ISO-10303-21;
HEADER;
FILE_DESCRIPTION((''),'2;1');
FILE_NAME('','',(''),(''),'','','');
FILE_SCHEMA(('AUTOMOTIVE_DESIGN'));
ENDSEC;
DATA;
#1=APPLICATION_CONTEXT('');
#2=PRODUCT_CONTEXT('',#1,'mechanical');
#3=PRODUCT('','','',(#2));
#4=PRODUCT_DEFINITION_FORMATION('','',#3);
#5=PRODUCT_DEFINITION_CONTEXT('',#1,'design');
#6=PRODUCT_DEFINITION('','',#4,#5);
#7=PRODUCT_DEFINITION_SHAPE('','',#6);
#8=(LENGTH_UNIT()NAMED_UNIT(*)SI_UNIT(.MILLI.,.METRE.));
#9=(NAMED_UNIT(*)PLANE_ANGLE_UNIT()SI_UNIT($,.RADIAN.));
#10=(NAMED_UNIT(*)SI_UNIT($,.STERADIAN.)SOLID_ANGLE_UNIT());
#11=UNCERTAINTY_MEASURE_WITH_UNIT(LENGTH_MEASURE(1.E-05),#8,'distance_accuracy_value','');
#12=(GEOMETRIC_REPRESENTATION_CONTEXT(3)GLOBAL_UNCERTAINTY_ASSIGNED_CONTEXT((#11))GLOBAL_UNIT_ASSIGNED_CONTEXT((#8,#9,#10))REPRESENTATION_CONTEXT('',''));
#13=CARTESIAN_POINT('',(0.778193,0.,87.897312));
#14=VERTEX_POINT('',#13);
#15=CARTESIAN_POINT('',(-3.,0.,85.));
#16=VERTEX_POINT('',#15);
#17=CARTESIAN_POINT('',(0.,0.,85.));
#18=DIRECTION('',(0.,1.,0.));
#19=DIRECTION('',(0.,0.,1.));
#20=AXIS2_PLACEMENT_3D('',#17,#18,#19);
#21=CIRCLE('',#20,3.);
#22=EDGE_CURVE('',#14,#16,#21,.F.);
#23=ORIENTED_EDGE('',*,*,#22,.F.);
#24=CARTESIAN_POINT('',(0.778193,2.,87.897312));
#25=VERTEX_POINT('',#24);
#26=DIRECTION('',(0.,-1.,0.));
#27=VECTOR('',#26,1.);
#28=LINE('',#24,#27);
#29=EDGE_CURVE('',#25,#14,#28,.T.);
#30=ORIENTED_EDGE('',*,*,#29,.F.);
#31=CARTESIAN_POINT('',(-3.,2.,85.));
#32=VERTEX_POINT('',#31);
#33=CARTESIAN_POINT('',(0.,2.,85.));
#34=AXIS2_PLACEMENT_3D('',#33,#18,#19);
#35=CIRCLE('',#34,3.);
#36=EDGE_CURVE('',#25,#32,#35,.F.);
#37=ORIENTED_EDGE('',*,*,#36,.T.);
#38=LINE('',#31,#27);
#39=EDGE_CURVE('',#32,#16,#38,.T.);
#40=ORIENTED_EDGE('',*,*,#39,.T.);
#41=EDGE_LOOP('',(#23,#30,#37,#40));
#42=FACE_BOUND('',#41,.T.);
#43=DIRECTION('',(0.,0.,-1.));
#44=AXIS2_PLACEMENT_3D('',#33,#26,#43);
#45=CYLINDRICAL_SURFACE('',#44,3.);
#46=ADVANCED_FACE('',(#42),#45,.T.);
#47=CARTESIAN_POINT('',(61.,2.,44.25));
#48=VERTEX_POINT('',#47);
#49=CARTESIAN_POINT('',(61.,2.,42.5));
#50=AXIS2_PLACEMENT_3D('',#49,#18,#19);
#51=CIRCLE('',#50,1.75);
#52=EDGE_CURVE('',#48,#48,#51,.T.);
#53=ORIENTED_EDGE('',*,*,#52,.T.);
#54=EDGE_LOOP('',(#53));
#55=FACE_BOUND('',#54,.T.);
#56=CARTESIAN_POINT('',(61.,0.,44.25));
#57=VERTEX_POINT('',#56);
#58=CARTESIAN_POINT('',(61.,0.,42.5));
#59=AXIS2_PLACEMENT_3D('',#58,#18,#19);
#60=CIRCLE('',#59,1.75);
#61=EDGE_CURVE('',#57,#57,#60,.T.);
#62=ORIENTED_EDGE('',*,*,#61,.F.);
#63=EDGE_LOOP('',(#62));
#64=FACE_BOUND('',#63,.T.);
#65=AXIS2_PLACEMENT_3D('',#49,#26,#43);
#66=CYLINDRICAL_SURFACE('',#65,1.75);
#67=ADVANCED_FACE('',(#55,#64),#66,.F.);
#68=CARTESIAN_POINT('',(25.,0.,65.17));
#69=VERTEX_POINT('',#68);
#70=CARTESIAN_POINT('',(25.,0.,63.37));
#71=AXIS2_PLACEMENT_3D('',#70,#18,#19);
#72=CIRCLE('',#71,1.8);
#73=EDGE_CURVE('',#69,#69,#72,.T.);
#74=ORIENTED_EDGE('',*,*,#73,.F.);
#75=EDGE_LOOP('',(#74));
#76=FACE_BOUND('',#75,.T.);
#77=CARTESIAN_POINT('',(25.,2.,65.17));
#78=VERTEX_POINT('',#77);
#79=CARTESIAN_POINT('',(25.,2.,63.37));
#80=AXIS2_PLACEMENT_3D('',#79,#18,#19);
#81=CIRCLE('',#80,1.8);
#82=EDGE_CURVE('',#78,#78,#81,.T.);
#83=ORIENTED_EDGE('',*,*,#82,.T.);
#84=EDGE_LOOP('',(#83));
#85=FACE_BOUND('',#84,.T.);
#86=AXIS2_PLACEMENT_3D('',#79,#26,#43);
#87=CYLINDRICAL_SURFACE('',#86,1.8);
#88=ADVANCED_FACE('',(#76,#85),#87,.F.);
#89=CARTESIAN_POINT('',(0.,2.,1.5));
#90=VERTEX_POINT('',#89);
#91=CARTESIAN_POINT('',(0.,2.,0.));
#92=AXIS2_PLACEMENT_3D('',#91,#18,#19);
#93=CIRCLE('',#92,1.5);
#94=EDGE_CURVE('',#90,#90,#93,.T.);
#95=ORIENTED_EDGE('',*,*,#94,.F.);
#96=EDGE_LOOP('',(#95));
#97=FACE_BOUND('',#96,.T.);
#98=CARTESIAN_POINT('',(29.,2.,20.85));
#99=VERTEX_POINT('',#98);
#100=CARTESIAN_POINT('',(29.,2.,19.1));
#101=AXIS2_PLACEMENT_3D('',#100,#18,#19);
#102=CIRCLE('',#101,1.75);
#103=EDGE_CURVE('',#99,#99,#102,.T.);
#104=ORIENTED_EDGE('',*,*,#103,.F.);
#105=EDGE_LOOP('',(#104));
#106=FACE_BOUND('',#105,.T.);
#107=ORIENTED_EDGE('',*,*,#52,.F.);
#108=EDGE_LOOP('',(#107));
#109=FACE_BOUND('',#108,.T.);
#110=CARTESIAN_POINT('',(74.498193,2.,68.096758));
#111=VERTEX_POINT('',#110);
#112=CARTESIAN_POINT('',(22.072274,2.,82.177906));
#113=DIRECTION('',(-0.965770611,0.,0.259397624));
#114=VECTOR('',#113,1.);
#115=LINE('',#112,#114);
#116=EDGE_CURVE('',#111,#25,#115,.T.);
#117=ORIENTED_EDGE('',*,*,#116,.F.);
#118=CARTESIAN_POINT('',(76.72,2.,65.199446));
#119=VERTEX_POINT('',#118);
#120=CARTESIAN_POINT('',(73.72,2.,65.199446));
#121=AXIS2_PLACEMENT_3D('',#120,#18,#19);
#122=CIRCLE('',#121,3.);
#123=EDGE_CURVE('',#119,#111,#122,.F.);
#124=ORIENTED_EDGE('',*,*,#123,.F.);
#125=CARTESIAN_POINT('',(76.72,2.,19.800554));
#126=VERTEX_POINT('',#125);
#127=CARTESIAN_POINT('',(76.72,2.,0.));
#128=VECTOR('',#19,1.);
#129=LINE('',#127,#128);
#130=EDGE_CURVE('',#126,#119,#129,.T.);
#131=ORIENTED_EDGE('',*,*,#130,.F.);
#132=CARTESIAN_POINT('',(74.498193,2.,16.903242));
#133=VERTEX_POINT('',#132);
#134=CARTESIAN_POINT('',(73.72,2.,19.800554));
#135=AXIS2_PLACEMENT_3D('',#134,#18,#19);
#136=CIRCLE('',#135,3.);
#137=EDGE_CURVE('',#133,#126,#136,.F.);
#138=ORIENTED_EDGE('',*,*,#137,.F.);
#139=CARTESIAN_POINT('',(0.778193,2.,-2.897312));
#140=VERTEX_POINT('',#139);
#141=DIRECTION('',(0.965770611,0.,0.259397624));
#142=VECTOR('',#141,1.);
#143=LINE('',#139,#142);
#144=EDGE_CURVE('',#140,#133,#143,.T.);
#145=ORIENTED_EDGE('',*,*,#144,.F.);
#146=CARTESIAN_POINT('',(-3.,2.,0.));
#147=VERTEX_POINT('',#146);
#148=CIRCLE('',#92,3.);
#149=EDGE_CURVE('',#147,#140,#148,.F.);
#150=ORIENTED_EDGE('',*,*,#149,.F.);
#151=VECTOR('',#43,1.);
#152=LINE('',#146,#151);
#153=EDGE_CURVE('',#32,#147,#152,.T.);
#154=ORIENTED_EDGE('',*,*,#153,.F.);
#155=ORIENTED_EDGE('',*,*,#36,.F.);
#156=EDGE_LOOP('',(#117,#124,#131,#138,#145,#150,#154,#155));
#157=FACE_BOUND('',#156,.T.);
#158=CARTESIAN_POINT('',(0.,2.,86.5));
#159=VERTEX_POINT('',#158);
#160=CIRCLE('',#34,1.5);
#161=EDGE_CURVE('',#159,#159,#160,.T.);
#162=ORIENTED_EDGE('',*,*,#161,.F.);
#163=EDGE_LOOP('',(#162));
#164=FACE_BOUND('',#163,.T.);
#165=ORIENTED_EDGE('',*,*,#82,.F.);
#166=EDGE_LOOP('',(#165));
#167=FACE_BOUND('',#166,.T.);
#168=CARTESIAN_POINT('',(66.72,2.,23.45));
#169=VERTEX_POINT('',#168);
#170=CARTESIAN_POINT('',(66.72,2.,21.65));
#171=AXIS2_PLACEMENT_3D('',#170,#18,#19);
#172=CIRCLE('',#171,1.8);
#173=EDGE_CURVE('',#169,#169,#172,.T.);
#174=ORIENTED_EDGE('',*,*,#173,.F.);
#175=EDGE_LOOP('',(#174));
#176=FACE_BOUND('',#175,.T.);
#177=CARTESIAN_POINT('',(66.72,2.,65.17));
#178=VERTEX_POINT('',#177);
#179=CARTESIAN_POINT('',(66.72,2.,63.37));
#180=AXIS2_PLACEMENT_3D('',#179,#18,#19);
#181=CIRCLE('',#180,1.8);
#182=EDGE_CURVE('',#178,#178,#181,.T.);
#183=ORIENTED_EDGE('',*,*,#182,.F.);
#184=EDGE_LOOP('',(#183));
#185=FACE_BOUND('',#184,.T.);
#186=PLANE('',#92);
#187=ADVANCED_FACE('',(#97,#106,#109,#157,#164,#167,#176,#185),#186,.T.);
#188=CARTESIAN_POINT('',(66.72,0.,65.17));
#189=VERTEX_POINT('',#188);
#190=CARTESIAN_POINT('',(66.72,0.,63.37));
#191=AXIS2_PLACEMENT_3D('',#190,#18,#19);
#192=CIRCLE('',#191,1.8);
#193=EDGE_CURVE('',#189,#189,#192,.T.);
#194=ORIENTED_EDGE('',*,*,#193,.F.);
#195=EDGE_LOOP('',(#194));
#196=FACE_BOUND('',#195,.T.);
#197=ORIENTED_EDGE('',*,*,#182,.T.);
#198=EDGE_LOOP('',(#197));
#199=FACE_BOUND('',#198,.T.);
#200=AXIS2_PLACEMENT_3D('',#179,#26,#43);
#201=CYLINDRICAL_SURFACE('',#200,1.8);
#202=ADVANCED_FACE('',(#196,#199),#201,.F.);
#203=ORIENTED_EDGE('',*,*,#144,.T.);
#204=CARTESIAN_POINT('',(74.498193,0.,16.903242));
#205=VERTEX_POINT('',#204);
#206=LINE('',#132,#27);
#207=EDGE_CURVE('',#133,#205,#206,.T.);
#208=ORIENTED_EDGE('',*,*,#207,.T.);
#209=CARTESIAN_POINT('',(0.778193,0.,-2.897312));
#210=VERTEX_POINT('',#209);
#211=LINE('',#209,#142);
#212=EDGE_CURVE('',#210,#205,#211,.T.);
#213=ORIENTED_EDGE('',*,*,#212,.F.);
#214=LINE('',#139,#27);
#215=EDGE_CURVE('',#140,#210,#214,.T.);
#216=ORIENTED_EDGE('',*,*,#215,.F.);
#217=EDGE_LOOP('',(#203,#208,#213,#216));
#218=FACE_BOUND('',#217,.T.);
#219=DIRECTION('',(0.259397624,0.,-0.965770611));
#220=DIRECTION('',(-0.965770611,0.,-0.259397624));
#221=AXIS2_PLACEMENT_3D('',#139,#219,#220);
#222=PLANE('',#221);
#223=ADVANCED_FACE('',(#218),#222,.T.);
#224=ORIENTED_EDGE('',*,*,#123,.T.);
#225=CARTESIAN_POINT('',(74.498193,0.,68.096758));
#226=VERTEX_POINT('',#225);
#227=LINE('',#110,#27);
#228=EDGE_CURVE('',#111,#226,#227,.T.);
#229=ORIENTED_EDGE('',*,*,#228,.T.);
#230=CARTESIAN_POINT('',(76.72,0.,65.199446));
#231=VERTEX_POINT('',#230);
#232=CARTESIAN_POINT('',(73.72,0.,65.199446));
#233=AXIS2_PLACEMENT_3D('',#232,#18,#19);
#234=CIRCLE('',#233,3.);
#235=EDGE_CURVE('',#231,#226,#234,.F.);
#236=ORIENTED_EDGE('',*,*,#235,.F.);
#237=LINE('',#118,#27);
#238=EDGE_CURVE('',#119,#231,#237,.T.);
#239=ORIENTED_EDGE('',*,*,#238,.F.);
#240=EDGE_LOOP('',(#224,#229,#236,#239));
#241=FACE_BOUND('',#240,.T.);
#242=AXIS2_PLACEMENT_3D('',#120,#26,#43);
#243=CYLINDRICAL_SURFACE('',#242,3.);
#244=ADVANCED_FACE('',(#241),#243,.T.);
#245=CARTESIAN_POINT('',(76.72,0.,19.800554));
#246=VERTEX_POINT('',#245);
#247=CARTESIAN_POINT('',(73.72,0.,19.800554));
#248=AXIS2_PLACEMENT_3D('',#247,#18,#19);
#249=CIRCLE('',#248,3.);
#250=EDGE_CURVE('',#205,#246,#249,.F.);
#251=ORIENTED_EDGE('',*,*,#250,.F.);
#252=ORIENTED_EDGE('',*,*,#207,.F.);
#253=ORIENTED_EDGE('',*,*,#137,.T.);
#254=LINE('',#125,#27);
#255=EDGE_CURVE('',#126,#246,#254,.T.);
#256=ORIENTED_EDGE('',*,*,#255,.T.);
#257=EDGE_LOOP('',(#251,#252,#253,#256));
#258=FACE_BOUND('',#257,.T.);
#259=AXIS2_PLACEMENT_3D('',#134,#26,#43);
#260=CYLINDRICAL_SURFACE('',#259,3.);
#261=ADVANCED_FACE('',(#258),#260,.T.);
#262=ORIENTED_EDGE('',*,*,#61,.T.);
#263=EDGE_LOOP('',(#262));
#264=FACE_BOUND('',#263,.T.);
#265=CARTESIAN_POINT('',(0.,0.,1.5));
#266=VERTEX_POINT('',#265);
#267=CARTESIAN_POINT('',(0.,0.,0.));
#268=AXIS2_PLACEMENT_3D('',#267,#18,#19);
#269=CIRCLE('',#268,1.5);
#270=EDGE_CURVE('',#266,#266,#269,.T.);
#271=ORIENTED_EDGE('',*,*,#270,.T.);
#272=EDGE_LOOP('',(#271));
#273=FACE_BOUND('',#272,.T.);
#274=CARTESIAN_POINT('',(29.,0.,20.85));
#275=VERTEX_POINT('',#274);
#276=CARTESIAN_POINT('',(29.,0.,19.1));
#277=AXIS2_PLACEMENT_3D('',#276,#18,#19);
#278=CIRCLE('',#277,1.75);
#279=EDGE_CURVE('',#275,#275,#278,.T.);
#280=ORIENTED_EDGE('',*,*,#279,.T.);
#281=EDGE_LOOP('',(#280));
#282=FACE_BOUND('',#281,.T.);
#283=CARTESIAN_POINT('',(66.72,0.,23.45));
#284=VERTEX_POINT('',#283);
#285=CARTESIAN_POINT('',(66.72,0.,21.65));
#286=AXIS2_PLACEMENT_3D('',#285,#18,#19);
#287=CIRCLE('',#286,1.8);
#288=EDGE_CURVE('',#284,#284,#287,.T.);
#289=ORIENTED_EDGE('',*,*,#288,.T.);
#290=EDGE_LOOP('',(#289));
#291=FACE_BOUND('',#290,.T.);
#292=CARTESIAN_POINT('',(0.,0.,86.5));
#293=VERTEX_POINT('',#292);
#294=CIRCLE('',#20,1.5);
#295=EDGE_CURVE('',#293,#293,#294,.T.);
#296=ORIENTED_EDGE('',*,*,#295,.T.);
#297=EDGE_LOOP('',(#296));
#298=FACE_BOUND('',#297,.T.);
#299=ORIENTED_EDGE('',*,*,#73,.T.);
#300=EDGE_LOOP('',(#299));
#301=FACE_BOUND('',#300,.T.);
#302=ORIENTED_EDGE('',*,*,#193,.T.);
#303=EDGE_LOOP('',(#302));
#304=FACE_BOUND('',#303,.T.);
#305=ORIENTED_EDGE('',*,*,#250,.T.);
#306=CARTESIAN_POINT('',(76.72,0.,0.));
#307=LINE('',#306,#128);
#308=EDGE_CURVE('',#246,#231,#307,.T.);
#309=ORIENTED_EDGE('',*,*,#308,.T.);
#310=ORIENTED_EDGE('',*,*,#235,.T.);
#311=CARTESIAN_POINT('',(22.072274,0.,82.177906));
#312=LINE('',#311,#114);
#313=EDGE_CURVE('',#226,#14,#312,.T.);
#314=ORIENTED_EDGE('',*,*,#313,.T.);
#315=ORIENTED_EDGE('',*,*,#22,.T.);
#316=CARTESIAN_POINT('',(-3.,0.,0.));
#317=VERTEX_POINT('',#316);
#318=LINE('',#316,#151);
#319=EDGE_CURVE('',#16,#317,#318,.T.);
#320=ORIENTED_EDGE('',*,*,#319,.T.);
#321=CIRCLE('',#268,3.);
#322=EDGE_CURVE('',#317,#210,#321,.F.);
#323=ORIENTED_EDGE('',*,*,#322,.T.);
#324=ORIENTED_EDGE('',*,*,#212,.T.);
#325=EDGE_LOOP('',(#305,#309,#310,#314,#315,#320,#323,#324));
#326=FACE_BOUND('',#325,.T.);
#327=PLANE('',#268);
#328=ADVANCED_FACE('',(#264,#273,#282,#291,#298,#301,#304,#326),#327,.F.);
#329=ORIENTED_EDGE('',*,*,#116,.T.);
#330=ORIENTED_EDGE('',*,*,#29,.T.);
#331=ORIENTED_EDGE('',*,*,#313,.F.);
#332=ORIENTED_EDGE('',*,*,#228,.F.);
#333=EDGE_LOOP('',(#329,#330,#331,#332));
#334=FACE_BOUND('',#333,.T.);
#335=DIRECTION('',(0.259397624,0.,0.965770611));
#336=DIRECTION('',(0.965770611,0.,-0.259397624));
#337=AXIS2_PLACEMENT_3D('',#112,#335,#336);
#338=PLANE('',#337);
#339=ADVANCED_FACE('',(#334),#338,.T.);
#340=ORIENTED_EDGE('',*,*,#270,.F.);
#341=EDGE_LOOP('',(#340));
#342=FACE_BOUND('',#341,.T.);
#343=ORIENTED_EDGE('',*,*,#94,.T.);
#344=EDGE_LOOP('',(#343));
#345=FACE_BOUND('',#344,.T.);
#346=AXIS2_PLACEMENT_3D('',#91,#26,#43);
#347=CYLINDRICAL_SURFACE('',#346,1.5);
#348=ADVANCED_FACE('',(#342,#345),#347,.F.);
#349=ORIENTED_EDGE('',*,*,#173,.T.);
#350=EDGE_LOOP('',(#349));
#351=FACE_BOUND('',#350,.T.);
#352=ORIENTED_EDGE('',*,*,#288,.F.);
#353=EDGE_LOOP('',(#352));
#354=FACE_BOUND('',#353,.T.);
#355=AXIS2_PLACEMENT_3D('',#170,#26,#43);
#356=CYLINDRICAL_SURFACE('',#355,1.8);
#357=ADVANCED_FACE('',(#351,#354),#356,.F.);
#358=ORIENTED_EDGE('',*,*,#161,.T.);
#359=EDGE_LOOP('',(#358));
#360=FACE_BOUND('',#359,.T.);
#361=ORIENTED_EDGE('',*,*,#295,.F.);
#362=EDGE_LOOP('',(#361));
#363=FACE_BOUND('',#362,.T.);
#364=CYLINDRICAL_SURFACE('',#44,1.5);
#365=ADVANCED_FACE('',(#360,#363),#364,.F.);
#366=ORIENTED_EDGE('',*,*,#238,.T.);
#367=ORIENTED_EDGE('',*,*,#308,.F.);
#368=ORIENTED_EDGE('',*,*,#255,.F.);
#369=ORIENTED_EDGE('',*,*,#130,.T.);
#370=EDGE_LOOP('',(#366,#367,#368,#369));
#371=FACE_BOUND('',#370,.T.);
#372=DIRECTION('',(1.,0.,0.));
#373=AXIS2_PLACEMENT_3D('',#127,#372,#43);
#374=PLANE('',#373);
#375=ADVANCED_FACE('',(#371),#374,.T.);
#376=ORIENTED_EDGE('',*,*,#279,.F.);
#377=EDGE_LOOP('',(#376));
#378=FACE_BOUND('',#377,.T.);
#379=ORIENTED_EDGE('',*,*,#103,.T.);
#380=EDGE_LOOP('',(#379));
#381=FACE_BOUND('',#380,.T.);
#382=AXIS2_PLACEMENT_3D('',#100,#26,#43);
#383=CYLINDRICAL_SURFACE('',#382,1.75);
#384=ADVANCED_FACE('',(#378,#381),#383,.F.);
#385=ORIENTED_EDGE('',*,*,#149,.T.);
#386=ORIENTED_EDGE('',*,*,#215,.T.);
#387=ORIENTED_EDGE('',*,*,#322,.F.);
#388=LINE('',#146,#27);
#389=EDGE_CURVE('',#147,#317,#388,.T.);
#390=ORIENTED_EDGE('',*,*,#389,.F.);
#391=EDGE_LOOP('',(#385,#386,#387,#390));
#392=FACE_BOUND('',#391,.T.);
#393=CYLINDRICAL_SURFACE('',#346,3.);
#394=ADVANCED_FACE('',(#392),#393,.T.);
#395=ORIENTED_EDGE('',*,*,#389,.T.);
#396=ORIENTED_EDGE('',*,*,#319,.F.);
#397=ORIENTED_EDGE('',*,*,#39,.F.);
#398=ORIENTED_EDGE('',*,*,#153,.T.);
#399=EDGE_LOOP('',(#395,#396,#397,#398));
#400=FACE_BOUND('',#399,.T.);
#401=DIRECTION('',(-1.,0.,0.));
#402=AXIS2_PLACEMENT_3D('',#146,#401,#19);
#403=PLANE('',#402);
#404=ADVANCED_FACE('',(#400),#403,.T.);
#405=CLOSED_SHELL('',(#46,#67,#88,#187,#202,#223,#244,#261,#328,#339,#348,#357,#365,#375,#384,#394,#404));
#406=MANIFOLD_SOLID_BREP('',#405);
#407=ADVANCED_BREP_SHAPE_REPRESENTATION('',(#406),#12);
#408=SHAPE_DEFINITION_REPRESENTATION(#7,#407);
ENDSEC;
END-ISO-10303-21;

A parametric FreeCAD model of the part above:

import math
import FreeCAD as App
import Part
import Sketcher
from FreeCAD import Vector

doc = App.newDocument("Part")
body = doc.addObject("PartDesign::Body", "Body")

# Sketch on XZ plane
sketch1 = doc.addObject("Sketcher::SketchObject", "Sketch")
body.addObject(sketch1)
sketch1.AttachmentSupport = (doc.XZ_Plane, [""])
sketch1.MapMode = "FlatFace"
sketch1.addGeometry(Part.LineSegment(Vector(74.5, 16.9, 0), Vector(0.8, -2.9, 0)), False)
sketch1.addGeometry(Part.ArcOfCircle(Part.Circle(Vector(0, 0, 0), Vector(0, 0, 1), 3), math.radians(180), math.radians(285)), False)
sketch1.addGeometry(Part.LineSegment(Vector(-3, 0, 0), Vector(-3, 85, 0)), False)
sketch1.addGeometry(Part.ArcOfCircle(Part.Circle(Vector(0, 85, 0), Vector(0, 0, 1), 3), math.radians(75), math.radians(180)), False)
sketch1.addGeometry(Part.LineSegment(Vector(0.8, 87.9, 0), Vector(74.5, 68.1, 0)), False)
sketch1.addGeometry(Part.ArcOfCircle(Part.Circle(Vector(73.7, 65.2, 0), Vector(0, 0, 1), 3), math.radians(0), math.radians(75)), False)
sketch1.addGeometry(Part.LineSegment(Vector(76.7, 65.2, 0), Vector(76.7, 19.8, 0)), False)
sketch1.addGeometry(Part.ArcOfCircle(Part.Circle(Vector(73.7, 19.8, 0), Vector(0, 0, 1), 3), math.radians(-75), math.radians(0)), False)
sketch1.addGeometry(Part.Circle(Vector(66.7, 63.4, 0), Vector(0, 0, 1), 1.8), False)
sketch1.addGeometry(Part.Circle(Vector(0, 85, 0), Vector(0, 0, 1), 1.5), False)
sketch1.addGeometry(Part.Circle(Vector(25, 63.4, 0), Vector(0, 0, 1), 1.8), False)
sketch1.addGeometry(Part.Circle(Vector(61, 42.5, 0), Vector(0, 0, 1), 1.8), False)
sketch1.addGeometry(Part.Circle(Vector(66.7, 21.6, 0), Vector(0, 0, 1), 1.8), False)
sketch1.addGeometry(Part.Circle(Vector(29, 19.1, 0), Vector(0, 0, 1), 1.8), False)
sketch1.addGeometry(Part.Circle(Vector(0, 0, 0), Vector(0, 0, 1), 1.5), False)
sketch1.addConstraint(Sketcher.Constraint("Tangent", 0, 2, 1, 2))
sketch1.addConstraint(Sketcher.Constraint("Tangent", 1, 1, 2, 1))
sketch1.addConstraint(Sketcher.Constraint("Tangent", 2, 2, 3, 2))
sketch1.addConstraint(Sketcher.Constraint("Tangent", 3, 1, 4, 1))
sketch1.addConstraint(Sketcher.Constraint("Tangent", 4, 2, 5, 2))
sketch1.addConstraint(Sketcher.Constraint("Tangent", 5, 1, 6, 1))
sketch1.addConstraint(Sketcher.Constraint("Tangent", 6, 2, 7, 2))
sketch1.addConstraint(Sketcher.Constraint("Tangent", 7, 1, 0, 1))
sketch1.addConstraint(Sketcher.Constraint("Vertical", 2))
sketch1.addConstraint(Sketcher.Constraint("Vertical", 6))
sketch1.addConstraint(Sketcher.Constraint("Coincident", 1, 3, -1, 1))
sketch1.addConstraint(Sketcher.Constraint("Coincident", 14, 3, -1, 1))
sketch1.addConstraint(Sketcher.Constraint("Coincident", 9, 3, 3, 3))
sketch1.addConstraint(Sketcher.Constraint("Equal", 1, 3))
sketch1.addConstraint(Sketcher.Constraint("Equal", 3, 5))
sketch1.addConstraint(Sketcher.Constraint("Equal", 5, 7))
sketch1.addConstraint(Sketcher.Constraint("Equal", 8, 10))
sketch1.addConstraint(Sketcher.Constraint("Equal", 10, 12))
sketch1.addConstraint(Sketcher.Constraint("Equal", 11, 13))
sketch1.addConstraint(Sketcher.Constraint("Equal", 9, 14))
sketch1.addConstraint(Sketcher.Constraint("Horizontal", 8, 3, 10, 3))
sketch1.addConstraint(Sketcher.Constraint("Vertical", 8, 3, 12, 3))
sketch1.addConstraint(Sketcher.Constraint("Vertical", 0, 2, 3, 1))
sketch1.addConstraint(Sketcher.Constraint("Diameter", 9, 3.0))
sketch1.addConstraint(Sketcher.Constraint("Radius", 1, 3.0))
sketch1.addConstraint(Sketcher.Constraint("Diameter", 8, 3.6))
sketch1.addConstraint(Sketcher.Constraint("Diameter", 11, 3.5))
sketch1.addConstraint(Sketcher.Constraint("DistanceY", 2, 1, 2, 2, 85.0))
sketch1.addConstraint(Sketcher.Constraint("DistanceX", -1, 1, 10, 3, 25.0))
sketch1.addConstraint(Sketcher.Constraint("DistanceX", -1, 1, 11, 3, 61.0))
sketch1.addConstraint(Sketcher.Constraint("DistanceX", -1, 1, 13, 3, 29.0))
sketch1.addConstraint(Sketcher.Constraint("DistanceX", 8, 3, 5, 3, 7.0))
sketch1.addConstraint(Sketcher.Constraint("DistanceY", -1, 1, 11, 3, 42.5))
sketch1.addConstraint(Sketcher.Constraint("DistanceY", -1, 1, 13, 3, 19.1))
sketch1.addConstraint(Sketcher.Constraint("DistanceX", -1, 1, 5, 3, 73.72))
sketch1.addConstraint(Sketcher.Constraint("DistanceY", -1, 1, 8, 3, 63.37))
sketch1.addConstraint(Sketcher.Constraint("DistanceY", -1, 1, 12, 3, 21.65))
sketch1.addConstraint(Sketcher.Constraint("DistanceY", 6, 2, 6, 1, 45.398893))
pad1 = doc.addObject("PartDesign::Pad", "Pad")
body.addObject(pad1)
pad1.Profile = sketch1
pad1.Length = 2
pad1.Reversed = True

doc.recompute()
